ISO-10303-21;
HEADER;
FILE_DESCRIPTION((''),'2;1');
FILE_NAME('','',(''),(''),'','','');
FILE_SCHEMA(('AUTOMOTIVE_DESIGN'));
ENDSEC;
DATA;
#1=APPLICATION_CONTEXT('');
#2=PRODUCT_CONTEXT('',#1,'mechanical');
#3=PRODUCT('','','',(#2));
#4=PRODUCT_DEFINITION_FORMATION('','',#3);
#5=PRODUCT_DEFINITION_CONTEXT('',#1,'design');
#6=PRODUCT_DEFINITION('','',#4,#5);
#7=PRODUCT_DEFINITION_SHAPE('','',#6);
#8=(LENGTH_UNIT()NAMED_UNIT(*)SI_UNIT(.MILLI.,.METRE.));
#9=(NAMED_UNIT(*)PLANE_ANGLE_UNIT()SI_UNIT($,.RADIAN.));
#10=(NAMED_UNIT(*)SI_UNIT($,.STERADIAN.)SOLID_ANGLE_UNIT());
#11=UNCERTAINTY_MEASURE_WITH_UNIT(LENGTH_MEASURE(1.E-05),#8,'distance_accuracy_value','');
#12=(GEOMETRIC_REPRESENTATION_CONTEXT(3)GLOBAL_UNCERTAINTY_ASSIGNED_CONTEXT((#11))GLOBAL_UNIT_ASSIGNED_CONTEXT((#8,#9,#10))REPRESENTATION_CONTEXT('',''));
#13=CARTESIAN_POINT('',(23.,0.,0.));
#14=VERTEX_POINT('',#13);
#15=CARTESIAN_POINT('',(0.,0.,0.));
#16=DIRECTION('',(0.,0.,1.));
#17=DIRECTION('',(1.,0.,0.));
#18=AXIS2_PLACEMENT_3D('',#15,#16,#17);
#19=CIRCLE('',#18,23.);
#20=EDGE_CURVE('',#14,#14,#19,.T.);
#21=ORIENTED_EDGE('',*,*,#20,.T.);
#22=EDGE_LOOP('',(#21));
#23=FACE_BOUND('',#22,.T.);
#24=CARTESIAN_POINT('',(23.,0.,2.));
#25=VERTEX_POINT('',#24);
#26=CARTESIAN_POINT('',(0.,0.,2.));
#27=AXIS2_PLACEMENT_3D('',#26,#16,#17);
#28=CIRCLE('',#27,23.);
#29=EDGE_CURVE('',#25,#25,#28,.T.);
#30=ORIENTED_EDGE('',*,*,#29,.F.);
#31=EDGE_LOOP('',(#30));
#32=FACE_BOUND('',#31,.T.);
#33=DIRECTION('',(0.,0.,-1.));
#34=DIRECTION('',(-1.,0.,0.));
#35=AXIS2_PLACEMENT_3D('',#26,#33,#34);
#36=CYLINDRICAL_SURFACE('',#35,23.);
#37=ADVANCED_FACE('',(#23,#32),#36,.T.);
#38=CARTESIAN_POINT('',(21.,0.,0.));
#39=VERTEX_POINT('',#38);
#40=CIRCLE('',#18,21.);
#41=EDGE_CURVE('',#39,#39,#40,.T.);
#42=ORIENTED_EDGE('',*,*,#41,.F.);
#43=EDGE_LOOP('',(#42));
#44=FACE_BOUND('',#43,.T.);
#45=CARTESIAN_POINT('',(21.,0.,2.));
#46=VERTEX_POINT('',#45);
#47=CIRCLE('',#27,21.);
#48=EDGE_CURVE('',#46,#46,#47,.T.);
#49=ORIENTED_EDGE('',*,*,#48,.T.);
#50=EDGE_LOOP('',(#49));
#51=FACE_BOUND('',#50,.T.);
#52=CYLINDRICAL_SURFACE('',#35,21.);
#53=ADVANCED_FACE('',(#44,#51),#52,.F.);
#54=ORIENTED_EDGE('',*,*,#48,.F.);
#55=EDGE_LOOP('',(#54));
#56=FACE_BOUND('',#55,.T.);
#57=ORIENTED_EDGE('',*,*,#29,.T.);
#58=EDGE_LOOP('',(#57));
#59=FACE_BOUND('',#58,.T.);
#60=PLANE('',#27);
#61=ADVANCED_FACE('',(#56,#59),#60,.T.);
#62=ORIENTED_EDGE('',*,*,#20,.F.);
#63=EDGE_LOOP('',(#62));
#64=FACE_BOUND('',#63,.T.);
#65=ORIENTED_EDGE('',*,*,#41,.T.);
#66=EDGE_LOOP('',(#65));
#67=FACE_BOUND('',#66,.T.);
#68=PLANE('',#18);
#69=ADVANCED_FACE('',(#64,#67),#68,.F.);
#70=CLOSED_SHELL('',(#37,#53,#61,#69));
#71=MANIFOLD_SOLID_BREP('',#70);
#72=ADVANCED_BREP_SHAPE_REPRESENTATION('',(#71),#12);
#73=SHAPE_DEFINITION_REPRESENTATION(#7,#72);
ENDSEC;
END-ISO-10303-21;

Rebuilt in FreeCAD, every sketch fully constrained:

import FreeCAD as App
import Part
import Sketcher
from FreeCAD import Vector
Q = App.Units.Quantity

doc = App.newDocument("Part")
body = doc.addObject("PartDesign::Body", "Body")

# Sketch on XY plane
sketch1 = body.newObject("Sketcher::SketchObject", "Sketch")
sketch1.AttachmentSupport = (doc.getObject("XY_Plane"), [""])
sketch1.MapMode = "FlatFace"
sketch1.addGeometry([
    Part.Circle(Vector(0, 0, 0), Vector(0, 0, 1), 23),
    Part.Circle(Vector(0, 0, 0), Vector(0, 0, 1), 21),
], False)
sketch1.addConstraint([
    Sketcher.Constraint("Coincident", 0, 3, -1, 1),
    Sketcher.Constraint("Coincident", 1, 3, -1, 1),
    Sketcher.Constraint("Diameter", 0, Q("46 mm")),
    Sketcher.Constraint("Diameter", 1, Q("42 mm")),
])
pad1 = body.newObject("PartDesign::Pad", "Pad")
pad1.Profile = sketch1
pad1.Length = 2

doc.recompute()
